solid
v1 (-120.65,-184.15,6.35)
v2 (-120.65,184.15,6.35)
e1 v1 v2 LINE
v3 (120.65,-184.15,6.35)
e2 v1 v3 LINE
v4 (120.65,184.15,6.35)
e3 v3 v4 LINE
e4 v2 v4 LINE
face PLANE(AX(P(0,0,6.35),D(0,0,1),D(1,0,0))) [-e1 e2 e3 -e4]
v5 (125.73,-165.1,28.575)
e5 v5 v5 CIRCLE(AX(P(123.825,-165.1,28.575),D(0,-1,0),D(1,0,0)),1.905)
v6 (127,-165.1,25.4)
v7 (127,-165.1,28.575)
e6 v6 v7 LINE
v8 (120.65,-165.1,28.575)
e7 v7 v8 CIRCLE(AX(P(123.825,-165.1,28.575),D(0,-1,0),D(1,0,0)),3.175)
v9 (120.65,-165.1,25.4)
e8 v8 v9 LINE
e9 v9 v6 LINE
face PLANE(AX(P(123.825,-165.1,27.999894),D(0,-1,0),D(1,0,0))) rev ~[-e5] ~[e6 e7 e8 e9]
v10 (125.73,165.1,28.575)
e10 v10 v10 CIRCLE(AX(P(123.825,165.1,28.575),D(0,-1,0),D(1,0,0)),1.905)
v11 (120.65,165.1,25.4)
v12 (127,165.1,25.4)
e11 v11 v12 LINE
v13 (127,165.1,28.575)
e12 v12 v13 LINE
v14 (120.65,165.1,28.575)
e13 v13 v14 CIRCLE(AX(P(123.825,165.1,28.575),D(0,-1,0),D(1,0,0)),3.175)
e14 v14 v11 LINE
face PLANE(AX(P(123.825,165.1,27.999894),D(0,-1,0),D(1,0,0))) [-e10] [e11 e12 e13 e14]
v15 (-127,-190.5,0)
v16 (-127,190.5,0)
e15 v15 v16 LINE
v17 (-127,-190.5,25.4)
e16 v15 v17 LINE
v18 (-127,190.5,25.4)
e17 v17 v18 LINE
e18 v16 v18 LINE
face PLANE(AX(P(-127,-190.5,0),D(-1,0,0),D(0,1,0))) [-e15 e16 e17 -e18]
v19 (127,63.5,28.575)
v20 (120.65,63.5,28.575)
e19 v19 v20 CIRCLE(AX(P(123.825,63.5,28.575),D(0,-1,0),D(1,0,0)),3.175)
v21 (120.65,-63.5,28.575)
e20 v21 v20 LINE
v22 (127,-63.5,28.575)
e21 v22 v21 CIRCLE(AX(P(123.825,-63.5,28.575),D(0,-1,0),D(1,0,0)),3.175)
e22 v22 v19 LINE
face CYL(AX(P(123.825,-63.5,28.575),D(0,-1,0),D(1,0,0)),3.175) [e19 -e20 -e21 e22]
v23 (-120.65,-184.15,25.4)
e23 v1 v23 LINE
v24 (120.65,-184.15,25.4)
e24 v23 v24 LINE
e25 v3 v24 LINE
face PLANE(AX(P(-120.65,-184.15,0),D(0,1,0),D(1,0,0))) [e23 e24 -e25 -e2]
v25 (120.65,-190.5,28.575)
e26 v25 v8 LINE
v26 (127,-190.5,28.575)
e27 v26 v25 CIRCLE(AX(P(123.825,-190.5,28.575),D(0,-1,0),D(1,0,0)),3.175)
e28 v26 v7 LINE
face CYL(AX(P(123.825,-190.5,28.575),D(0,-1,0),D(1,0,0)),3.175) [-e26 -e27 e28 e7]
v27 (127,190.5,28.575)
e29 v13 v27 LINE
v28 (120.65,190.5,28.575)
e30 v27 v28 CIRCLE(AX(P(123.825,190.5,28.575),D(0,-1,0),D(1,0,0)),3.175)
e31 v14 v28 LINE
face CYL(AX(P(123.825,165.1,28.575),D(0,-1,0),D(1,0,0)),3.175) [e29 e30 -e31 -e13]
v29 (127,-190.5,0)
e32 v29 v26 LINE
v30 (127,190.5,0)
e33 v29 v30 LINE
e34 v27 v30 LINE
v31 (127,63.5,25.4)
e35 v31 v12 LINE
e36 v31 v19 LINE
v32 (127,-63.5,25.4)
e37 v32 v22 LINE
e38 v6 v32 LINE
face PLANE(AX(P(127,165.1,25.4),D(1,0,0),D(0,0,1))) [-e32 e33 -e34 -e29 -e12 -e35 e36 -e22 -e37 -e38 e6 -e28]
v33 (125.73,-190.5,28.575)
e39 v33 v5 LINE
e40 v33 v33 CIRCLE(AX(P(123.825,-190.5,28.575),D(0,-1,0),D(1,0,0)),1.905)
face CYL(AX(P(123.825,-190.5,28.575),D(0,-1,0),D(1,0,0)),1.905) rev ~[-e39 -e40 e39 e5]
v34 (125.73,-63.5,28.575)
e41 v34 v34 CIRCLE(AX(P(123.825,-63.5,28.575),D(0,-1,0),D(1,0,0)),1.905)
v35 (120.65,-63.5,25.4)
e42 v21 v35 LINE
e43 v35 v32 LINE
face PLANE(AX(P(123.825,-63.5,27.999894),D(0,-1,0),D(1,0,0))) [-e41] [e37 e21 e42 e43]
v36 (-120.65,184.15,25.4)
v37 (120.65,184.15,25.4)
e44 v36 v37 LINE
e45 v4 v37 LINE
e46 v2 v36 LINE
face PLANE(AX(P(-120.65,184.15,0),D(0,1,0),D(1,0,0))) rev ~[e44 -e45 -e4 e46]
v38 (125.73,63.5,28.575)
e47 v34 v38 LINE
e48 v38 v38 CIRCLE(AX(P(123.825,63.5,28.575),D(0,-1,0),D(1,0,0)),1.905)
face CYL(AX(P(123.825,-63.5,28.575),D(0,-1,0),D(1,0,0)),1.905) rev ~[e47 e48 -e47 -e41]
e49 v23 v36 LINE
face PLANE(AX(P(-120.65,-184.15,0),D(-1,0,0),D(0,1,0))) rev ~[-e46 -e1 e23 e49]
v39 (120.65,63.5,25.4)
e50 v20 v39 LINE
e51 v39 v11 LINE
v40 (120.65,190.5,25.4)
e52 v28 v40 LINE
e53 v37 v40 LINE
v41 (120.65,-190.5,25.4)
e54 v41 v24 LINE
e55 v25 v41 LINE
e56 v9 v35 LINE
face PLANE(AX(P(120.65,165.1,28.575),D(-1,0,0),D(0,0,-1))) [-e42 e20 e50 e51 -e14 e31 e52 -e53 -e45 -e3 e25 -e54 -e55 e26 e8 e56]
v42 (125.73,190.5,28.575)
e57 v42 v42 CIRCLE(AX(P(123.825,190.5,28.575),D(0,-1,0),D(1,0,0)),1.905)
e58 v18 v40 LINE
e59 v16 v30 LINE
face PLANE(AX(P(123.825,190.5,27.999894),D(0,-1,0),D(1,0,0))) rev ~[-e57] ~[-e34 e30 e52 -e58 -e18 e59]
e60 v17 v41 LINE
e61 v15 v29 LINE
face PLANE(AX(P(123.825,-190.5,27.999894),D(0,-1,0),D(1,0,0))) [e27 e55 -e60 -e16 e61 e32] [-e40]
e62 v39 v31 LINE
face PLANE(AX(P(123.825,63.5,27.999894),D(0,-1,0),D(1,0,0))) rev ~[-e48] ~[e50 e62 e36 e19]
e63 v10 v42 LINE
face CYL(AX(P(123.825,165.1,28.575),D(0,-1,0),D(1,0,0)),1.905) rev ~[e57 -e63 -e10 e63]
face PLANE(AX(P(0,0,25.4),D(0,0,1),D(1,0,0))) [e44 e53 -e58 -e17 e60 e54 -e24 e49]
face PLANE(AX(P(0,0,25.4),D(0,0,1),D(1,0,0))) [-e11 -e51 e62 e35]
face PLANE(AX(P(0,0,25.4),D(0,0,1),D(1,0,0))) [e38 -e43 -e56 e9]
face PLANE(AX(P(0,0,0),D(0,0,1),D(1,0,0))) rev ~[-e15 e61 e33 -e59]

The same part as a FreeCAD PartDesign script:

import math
import FreeCAD as App
import Part
import Sketcher

V = App.Vector
Q = App.Units.Quantity


def add_polygon(sketch, points):
    """Adds a closed chain of lines whose ends are joined by coincident constraints."""
    first, n = sketch.GeometryCount, len(points)
    for a, b in zip(points, points[1:] + points[:1]):
        sketch.addGeometry(Part.LineSegment(App.Vector(*a, 0), App.Vector(*b, 0)), False)
    for i in range(n):
        sketch.addConstraint(Sketcher.Constraint("Coincident", first + i, 2, first + (i + 1) % n, 1))

doc = App.newDocument("Part")
body = doc.addObject("PartDesign::Body", "Body")

# Sketch on XY plane
sketch1 = body.newObject("Sketcher::SketchObject", "Sketch")
sketch1.AttachmentSupport = (doc.getObject("XY_Plane"), [""])
sketch1.MapMode = "FlatFace"
add_polygon(sketch1, [(-127, 190), (-127, -190), (127, -190), (127, 190)])  # lines 0-3
add_polygon(sketch1, [(121, -184), (-121, -184), (-121, 184), (121, 184)])  # lines 4-7
sketch1.addConstraint([
    Sketcher.Constraint("Vertical", 0),
    Sketcher.Constraint("Horizontal", 1),
    Sketcher.Constraint("Vertical", 2),
    Sketcher.Constraint("Horizontal", 3),
    Sketcher.Constraint("Horizontal", 4),
    Sketcher.Constraint("Vertical", 5),
    Sketcher.Constraint("Horizontal", 6),
    Sketcher.Constraint("Vertical", 7),
    Sketcher.Constraint("Symmetric", 0, 2, 2, 2, -1, 1),
    Sketcher.Constraint("Symmetric", 4, 2, 6, 2, -1, 1),
    Sketcher.Constraint("DistanceX", 1, 1, 1, 2, Q("10 in")),
    Sketcher.Constraint("DistanceY", 0, 2, 0, 1, Q("15 in")),
    Sketcher.Constraint("DistanceX", 4, 2, 4, 1, Q("9.5 in")),
    Sketcher.Constraint("DistanceY", 5, 1, 5, 2, Q("14.5 in")),
])
pad1 = body.newObject("PartDesign::Pad", "Pad")
pad1.Profile = sketch1
pad1.Length = Q("1 in")

# Sketch on XY plane
sketch2 = body.newObject("Sketcher::SketchObject", "Sketch001")
sketch2.AttachmentSupport = (doc.getObject("XY_Plane"), [""])
sketch2.MapMode = "FlatFace"
add_polygon(sketch2, [(-121, 184), (-121, -184), (121, -184), (121, 184)])  # lines 0-3
sketch2.addConstraint([
    Sketcher.Constraint("Vertical", 0),
    Sketcher.Constraint("Horizontal", 1),
    Sketcher.Constraint("Vertical", 2),
    Sketcher.Constraint("Horizontal", 3),
    Sketcher.Constraint("Symmetric", 0, 2, 2, 2, -1, 1),
    Sketcher.Constraint("DistanceX", 1, 1, 1, 2, Q("9.5 in")),
    Sketcher.Constraint("DistanceY", 0, 2, 0, 1, Q("14.5 in")),
])
pad2 = body.newObject("PartDesign::Pad", "Pad001")
pad2.Profile = sketch2
pad2.Length = Q("0.25 in")

# Sketch on XZ plane
sketch3 = body.newObject("Sketcher::SketchObject", "Sketch002")
sketch3.AttachmentSupport = (doc.getObject("XZ_Plane"), [""])
sketch3.MapMode = "FlatFace"
sketch3.AttachmentOffset = App.Placement(V(0, 0, 2.5 * 25.4), App.Rotation())
sketch3.addGeometry([
    Part.LineSegment(V(120.7, 25.4, 0), V(127, 25.4, 0)),  # 0
    Part.LineSegment(V(127, 25.4, 0), V(127, 28.6, 0)),  # 1
    Part.ArcOfCircle(Part.Circle(V(123.8, 28.6, 0), V(0, 0, 1), 3.2), math.radians(0), math.radians(180)),  # 2
    Part.LineSegment(V(120.7, 28.6, 0), V(120.7, 25.4, 0)),  # 3
    Part.Circle(V(123.8, 28.6, 0), V(0, 0, 1), 1.9),  # 4
], False)
sketch3.addConstraint([
    Sketcher.Constraint("Coincident", 0, 2, 1, 1),
    Sketcher.Constraint("Tangent", 1, 2, 2, 1),
    Sketcher.Constraint("Tangent", 2, 2, 3, 1),
    Sketcher.Constraint("Coincident", 3, 2, 0, 1),
    Sketcher.Constraint("Horizontal", 0),
    Sketcher.Constraint("Vertical", 1),
    Sketcher.Constraint("Vertical", 3),
    Sketcher.Constraint("Coincident", 4, 3, 2, 3),
    Sketcher.Constraint("Diameter", 4, Q("0.15 in")),
    Sketcher.Constraint("DistanceX", -1, 1, 0, 2, Q("5 in")),
    Sketcher.Constraint("DistanceY", -1, 1, 0, 2, Q("1 in")),
    Sketcher.Constraint("Radius", 2, Q("0.125 in")),
    Sketcher.Constraint("DistanceY", 1, 1, 1, 2, Q("0.125 in")),
])
pad3 = body.newObject("PartDesign::Pad", "Pad002")
pad3.Profile = sketch3
pad3.Length = Q("5 in")
pad3.Reversed = True

# Sketch on XZ plane
sketch4 = body.newObject("Sketcher::SketchObject", "Sketch003")
sketch4.AttachmentSupport = (doc.getObject("XZ_Plane"), [""])
sketch4.MapMode = "FlatFace"
sketch4.AttachmentOffset = App.Placement(V(0, 0, 7.5 * 25.4), App.Rotation())
sketch4.addGeometry([
    Part.LineSegment(V(120.7, 25.4, 0), V(127, 25.4, 0)),  # 0
    Part.LineSegment(V(127, 25.4, 0), V(127, 28.6, 0)),  # 1
    Part.ArcOfCircle(Part.Circle(V(123.8, 28.6, 0), V(0, 0, 1), 3.2), math.radians(0), math.radians(180)),  # 2
    Part.LineSegment(V(120.7, 28.6, 0), V(120.7, 25.4, 0)),  # 3
    Part.Circle(V(123.8, 28.6, 0), V(0, 0, 1), 1.9),  # 4
], False)
sketch4.addConstraint([
    Sketcher.Constraint("Coincident", 0, 2, 1, 1),
    Sketcher.Constraint("Tangent", 1, 2, 2, 1),
    Sketcher.Constraint("Tangent", 2, 2, 3, 1),
    Sketcher.Constraint("Coincident", 3, 2, 0, 1),
    Sketcher.Constraint("Horizontal", 0),
    Sketcher.Constraint("Vertical", 1),
    Sketcher.Constraint("Vertical", 3),
    Sketcher.Constraint("Coincident", 4, 3, 2, 3),
    Sketcher.Constraint("Diameter", 4, Q("0.15 in")),
    Sketcher.Constraint("DistanceX", -1, 1, 0, 2, Q("5 in")),
    Sketcher.Constraint("DistanceY", -1, 1, 0, 2, Q("1 in")),
    Sketcher.Constraint("Radius", 2, Q("0.125 in")),
    Sketcher.Constraint("DistanceY", 1, 1, 1, 2, Q("0.125 in")),
])
pad4 = body.newObject("PartDesign::Pad", "Pad003")
pad4.Profile = sketch4
pad4.Length = Q("1 in")
pad4.Reversed = True

# Sketch on XZ plane
sketch5 = body.newObject("Sketcher::SketchObject", "Sketch004")
sketch5.AttachmentSupport = (doc.getObject("XZ_Plane"), [""])
sketch5.MapMode = "FlatFace"
sketch5.AttachmentOffset = App.Placement(V(0, 0, -6.5 * 25.4), App.Rotation())
sketch5.addGeometry([
    Part.LineSegment(V(120.7, 25.4, 0), V(127, 25.4, 0)),  # 0
    Part.LineSegment(V(127, 25.4, 0), V(127, 28.6, 0)),  # 1
    Part.ArcOfCircle(Part.Circle(V(123.8, 28.6, 0), V(0, 0, 1), 3.2), math.radians(0), math.radians(180)),  # 2
    Part.LineSegment(V(120.7, 28.6, 0), V(120.7, 25.4, 0)),  # 3
    Part.Circle(V(123.8, 28.6, 0), V(0, 0, 1), 1.9),  # 4
], False)
sketch5.addConstraint([
    Sketcher.Constraint("Coincident", 0, 2, 1, 1),
    Sketcher.Constraint("Tangent", 1, 2, 2, 1),
    Sketcher.Constraint("Tangent", 2, 2, 3, 1),
    Sketcher.Constraint("Coincident", 3, 2, 0, 1),
    Sketcher.Constraint("Horizontal", 0),
    Sketcher.Constraint("Vertical", 1),
    Sketcher.Constraint("Vertical", 3),
    Sketcher.Constraint("Coincident", 4, 3, 2, 3),
    Sketcher.Constraint("Diameter", 4, Q("0.15 in")),
    Sketcher.Constraint("DistanceX", -1, 1, 0, 2, Q("5 in")),
    Sketcher.Constraint("DistanceY", -1, 1, 0, 2, Q("1 in")),
    Sketcher.Constraint("Radius", 2, Q("0.125 in")),
    Sketcher.Constraint("DistanceY", 1, 1, 1, 2, Q("0.125 in")),
])
pad5 = body.newObject("PartDesign::Pad", "Pad004")
pad5.Profile = sketch5
pad5.Length = Q("1 in")
pad5.Reversed = True

doc.recompute()
